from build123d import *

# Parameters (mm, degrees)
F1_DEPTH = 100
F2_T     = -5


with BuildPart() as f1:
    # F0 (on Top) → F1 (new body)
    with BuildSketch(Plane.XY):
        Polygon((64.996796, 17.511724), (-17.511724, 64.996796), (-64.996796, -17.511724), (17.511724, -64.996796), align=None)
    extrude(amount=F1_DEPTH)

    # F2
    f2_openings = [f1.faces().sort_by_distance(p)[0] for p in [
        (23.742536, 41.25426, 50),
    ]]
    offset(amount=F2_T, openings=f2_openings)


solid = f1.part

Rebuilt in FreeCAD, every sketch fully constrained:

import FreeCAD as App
import Part
import Sketcher
from FreeCAD import Vector


def faces_at(feature, points):
    """Names of the faces that lie closest to the given points."""
    faces = feature.Shape.Faces
    near = lambda p: min(range(len(faces)), key=lambda i: faces[i].distToShape(Part.Vertex(*p))[0])
    return sorted({f"Face{near(p) + 1}" for p in points})


def add_polygon(sketch, points):
    """Adds a closed chain of lines whose ends are joined by coincident constraints."""
    first, n = sketch.GeometryCount, len(points)
    for a, b in zip(points, points[1:] + points[:1]):
        sketch.addGeometry(Part.LineSegment(App.Vector(*a, 0), App.Vector(*b, 0)), False)
    for i in range(n):
        sketch.addConstraint(Sketcher.Constraint("Coincident", first + i, 2, first + (i + 1) % n, 1))

doc = App.newDocument("Part")
body = doc.addObject("PartDesign::Body", "Body")

# Sketch on XY plane
sketch1 = body.newObject("Sketcher::SketchObject", "Sketch")
sketch1.AttachmentSupport = (doc.getObject("XY_Plane"), [""])
sketch1.MapMode = "FlatFace"
add_polygon(sketch1, [(65, 18), (-18, 65), (-65, -18), (18, -65)])  # lines 0-3
sketch1.addConstraint([
    Sketcher.Constraint("Symmetric", 0, 2, 2, 2, -1, 1),
    Sketcher.Constraint("Symmetric", 1, 2, 3, 2, -1, 1),
    Sketcher.Constraint("Perpendicular", 0, 1),
    Sketcher.Constraint("Equal", 0, 1),
    Sketcher.Constraint("Distance", 0, 95.1971),
    Sketcher.Constraint("DistanceY", 1, 2, 0, 2, 82.50852),
])
pad1 = body.newObject("PartDesign::Pad", "Pad")
pad1.Profile = sketch1
pad1.Length = 100
doc.recompute()

thickness = body.newObject("PartDesign::Thickness", "Thickness")
thickness.Base = (pad1, faces_at(pad1, [(23.743, 41.254, 50)]))
thickness.Value = 5
thickness.Reversed = True
thickness.Join = "Arc"

doc.recompute()
